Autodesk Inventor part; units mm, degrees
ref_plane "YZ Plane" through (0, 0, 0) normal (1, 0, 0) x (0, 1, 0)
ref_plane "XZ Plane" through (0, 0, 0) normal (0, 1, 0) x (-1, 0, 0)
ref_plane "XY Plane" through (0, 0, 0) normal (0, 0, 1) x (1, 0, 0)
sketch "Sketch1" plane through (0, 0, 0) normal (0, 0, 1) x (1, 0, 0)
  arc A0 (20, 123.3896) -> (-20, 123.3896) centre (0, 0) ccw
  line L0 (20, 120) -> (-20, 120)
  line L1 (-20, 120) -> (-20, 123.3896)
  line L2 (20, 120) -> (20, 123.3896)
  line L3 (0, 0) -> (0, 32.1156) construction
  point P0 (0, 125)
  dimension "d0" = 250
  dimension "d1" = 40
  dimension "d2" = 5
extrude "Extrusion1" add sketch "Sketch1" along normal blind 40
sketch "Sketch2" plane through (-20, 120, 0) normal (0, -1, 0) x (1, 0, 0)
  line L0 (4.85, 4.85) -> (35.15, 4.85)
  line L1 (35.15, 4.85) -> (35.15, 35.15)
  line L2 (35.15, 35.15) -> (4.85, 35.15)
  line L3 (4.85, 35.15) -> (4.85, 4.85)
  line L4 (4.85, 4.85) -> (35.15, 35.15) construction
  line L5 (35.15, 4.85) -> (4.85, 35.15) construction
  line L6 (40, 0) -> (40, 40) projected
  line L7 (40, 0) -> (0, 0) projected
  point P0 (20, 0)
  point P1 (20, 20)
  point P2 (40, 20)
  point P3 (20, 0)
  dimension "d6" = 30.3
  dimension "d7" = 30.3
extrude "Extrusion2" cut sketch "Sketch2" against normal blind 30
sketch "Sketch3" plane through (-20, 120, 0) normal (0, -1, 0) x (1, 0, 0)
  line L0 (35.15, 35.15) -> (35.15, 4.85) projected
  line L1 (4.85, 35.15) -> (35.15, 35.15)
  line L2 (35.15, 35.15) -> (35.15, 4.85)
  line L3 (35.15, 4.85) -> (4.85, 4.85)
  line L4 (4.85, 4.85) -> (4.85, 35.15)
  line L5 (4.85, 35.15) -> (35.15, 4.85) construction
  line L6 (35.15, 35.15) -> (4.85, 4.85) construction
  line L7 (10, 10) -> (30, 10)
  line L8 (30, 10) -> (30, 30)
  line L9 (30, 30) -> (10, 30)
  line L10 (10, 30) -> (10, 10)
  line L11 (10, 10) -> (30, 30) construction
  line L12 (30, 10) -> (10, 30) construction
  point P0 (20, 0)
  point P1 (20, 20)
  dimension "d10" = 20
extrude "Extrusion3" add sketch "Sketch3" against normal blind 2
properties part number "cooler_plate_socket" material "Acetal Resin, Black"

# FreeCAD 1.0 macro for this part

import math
import FreeCAD as App
import Part
import Sketcher


def add_polygon(sketch, points):
    """Adds a closed chain of lines whose ends are joined by coincident constraints."""
    first, n = sketch.GeometryCount, len(points)
    for a, b in zip(points, points[1:] + points[:1]):
        sketch.addGeometry(Part.LineSegment(App.Vector(*a, 0), App.Vector(*b, 0)), False)
    for i in range(n):
        sketch.addConstraint(Sketcher.Constraint("Coincident", first + i, 2, first + (i + 1) % n, 1))

doc = App.newDocument("Part")
body = doc.addObject("PartDesign::Body", "Body")

sketch1 = body.newObject("Sketcher::SketchObject", "Sketch")
sketch1.AttachmentSupport = (doc.getObject("XY_Plane"), [""])
sketch1.MapMode = "FlatFace"
sketch1.addGeometry([
    Part.LineSegment(App.Vector(20, 120, 0), App.Vector(20, 123.3896, 0)),
    Part.ArcOfCircle(Part.Circle(App.Vector(0, 0, 0), App.Vector(0, 0, 1), 124.999974), math.radians(80.793102), math.radians(99.206898)),
    Part.LineSegment(App.Vector(-20, 123.3896, 0), App.Vector(-20, 120, 0)),
    Part.LineSegment(App.Vector(-20, 120, 0), App.Vector(20, 120, 0)),
], False)
sketch1.addConstraint([
    Sketcher.Constraint("Coincident", 0, 2, 1, 1),
    Sketcher.Constraint("Coincident", 1, 2, 2, 1),
    Sketcher.Constraint("Coincident", 2, 2, 3, 1),
    Sketcher.Constraint("Coincident", 3, 2, 0, 1),
    Sketcher.Constraint("Vertical", 0),
    Sketcher.Constraint("Vertical", 2),
    Sketcher.Constraint("Horizontal", 3),
    Sketcher.Constraint("Coincident", 1, 3, -1, 1),
    Sketcher.Constraint("Horizontal", 0, 2, 1, 2),
    Sketcher.Constraint("Radius", 1, 125.0),
    Sketcher.Constraint("DistanceX", 3, 1, 3, 2, 40.0),
    Sketcher.Constraint("DistanceY", -1, 1, 2, 2, 120.0),
])
pad1 = body.newObject("PartDesign::Pad", "Pad")
pad1.Profile = sketch1
pad1.Length = 40

sketch2 = body.newObject("Sketcher::SketchObject", "Sketch001")
sketch2.AttachmentSupport = (doc.getObject("XZ_Plane"), [""])
sketch2.MapMode = "FlatFace"
sketch2.AttachmentOffset = App.Placement(App.Vector(0, 0, -120), App.Rotation())
add_polygon(sketch2, [(-15.15, 35.15), (-15.15, 4.85), (15.15, 4.85), (15.15, 35.15)])
sketch2.addConstraint([
    Sketcher.Constraint("Vertical", 0),
    Sketcher.Constraint("Horizontal", 1),
    Sketcher.Constraint("Vertical", 2),
    Sketcher.Constraint("Horizontal", 3),
    Sketcher.Constraint("Equal", 3, 0),
    Sketcher.Constraint("DistanceX", 1, 1, 1, 2, 30.3),
    Sketcher.Constraint("DistanceX", 0, 2, -1, 1, 15.15),
    Sketcher.Constraint("DistanceY", -1, 1, 0, 2, 4.85),
])
pocket1 = body.newObject("PartDesign::Pocket", "Pocket")
pocket1.Profile = sketch2
pocket1.Length = 30

sketch3 = body.newObject("Sketcher::SketchObject", "Sketch002")
sketch3.AttachmentSupport = (doc.getObject("XZ_Plane"), [""])
sketch3.MapMode = "FlatFace"
sketch3.AttachmentOffset = App.Placement(App.Vector(0, 0, -120), App.Rotation())
add_polygon(sketch3, [(15.15, 4.85), (15.15, 35.15), (-15.15, 35.15), (-15.15, 4.85)])
add_polygon(sketch3, [(10, 10), (-10, 10), (-10, 30), (10, 30)])
sketch3.addConstraint([
    Sketcher.Constraint("Vertical", 0),
    Sketcher.Constraint("Horizontal", 1),
    Sketcher.Constraint("Vertical", 2),
    Sketcher.Constraint("Horizontal", 3),
    Sketcher.Constraint("Horizontal", 4),
    Sketcher.Constraint("Vertical", 5),
    Sketcher.Constraint("Horizontal", 6),
    Sketcher.Constraint("Vertical", 7),
    Sketcher.Constraint("Equal", 3, 0),
    Sketcher.Constraint("Equal", 6, 5),
    Sketcher.Constraint("DistanceX", 4, 2, 4, 1, 20.0),
    Sketcher.Constraint("DistanceX", 1, 2, 1, 1, 30.3),
    Sketcher.Constraint("DistanceX", 4, 2, -1, 1, 10.0),
    Sketcher.Constraint("DistanceY", -1, 1, 4, 2, 10.0),
    Sketcher.Constraint("DistanceX", -1, 1, 0, 2, 15.15),
    Sketcher.Constraint("DistanceY", -1, 1, 0, 2, 35.15),
])
pad2 = body.newObject("PartDesign::Pad", "Pad001")
pad2.Profile = sketch3
pad2.Length = 2
pad2.Reversed = True

doc.recompute()
